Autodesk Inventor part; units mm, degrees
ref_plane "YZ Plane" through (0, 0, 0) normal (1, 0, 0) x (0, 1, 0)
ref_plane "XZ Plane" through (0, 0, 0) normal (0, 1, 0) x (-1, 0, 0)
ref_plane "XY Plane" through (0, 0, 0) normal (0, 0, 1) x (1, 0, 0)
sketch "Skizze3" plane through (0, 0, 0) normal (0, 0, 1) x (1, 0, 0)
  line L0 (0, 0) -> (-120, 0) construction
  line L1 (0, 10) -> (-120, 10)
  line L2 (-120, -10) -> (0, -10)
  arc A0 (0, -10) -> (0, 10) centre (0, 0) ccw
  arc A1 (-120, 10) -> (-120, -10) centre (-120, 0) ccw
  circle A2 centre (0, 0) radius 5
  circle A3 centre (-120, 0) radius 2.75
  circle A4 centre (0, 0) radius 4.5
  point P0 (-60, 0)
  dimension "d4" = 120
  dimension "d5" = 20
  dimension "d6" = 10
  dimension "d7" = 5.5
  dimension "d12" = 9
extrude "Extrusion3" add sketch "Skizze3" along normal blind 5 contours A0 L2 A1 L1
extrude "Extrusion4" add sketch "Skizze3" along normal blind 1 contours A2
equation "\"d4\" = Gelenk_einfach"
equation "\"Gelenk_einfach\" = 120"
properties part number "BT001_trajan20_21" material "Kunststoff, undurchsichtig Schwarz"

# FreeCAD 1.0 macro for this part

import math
import FreeCAD as App
import Part
import Sketcher

V = App.Vector
Q = App.Units.Quantity

doc = App.newDocument("Part")
body = doc.addObject("PartDesign::Body", "Body")

# Sketch on XY plane
sketch1 = doc.addObject("Sketcher::SketchObject", "Sketch")
body.addObject(sketch1)
sketch1.AttachmentSupport = (doc.XY_Plane, [""])
sketch1.MapMode = "FlatFace"
sketch1.addGeometry(Part.ArcOfCircle(Part.Circle(V(0, 0, 0), V(0, 0, 1), 10), math.radians(-90), math.radians(90)), False)
sketch1.addGeometry(Part.LineSegment(V(0, 10, 0), V(-120, 10, 0)), False)
sketch1.addGeometry(Part.ArcOfCircle(Part.Circle(V(-120, 0, 0), V(0, 0, 1), 10), math.radians(90), math.radians(270)), False)
sketch1.addGeometry(Part.LineSegment(V(-120, -10, 0), V(0, -10, 0)), False)
sketch1.addGeometry(Part.Circle(V(-120, 0, 0), V(0, 0, 1), 2.8), False)
sketch1.addGeometry(Part.Circle(V(0, 0, 0), V(0, 0, 1), 5), False)
sketch1.addConstraint(Sketcher.Constraint("Tangent", 0, 2, 1, 1))
sketch1.addConstraint(Sketcher.Constraint("Tangent", 1, 2, 2, 1))
sketch1.addConstraint(Sketcher.Constraint("Tangent", 2, 2, 3, 1))
sketch1.addConstraint(Sketcher.Constraint("Tangent", 3, 2, 0, 1))
sketch1.addConstraint(Sketcher.Constraint("Horizontal", 1))
sketch1.addConstraint(Sketcher.Constraint("Horizontal", 3))
sketch1.addConstraint(Sketcher.Constraint("Coincident", 0, 3, -1, 1))
sketch1.addConstraint(Sketcher.Constraint("Coincident", 5, 3, -1, 1))
sketch1.addConstraint(Sketcher.Constraint("Coincident", 4, 3, 2, 3))
sketch1.addConstraint(Sketcher.Constraint("Diameter", 5, Q("10 mm")))
sketch1.addConstraint(Sketcher.Constraint("Radius", 0, Q("10 mm")))
sketch1.addConstraint(Sketcher.Constraint("Diameter", 4, Q("5.5 mm")))
sketch1.addConstraint(Sketcher.Constraint("DistanceX", 1, 2, 1, 1, Q("120 mm")))
pad1 = doc.addObject("PartDesign::Pad", "Pad")
body.addObject(pad1)
pad1.Profile = sketch1
pad1.Length = 5

# Sketch on XY plane
sketch2 = doc.addObject("Sketcher::SketchObject", "Sketch001")
body.addObject(sketch2)
sketch2.AttachmentSupport = (doc.XY_Plane, [""])
sketch2.MapMode = "FlatFace"
sketch2.addGeometry(Part.Circle(V(0, 0, 0), V(0, 0, 1), 5), False)
sketch2.addGeometry(Part.Circle(V(0, 0, 0), V(0, 0, 1), 4.5), False)
sketch2.addConstraint(Sketcher.Constraint("Coincident", 0, 3, -1, 1))
sketch2.addConstraint(Sketcher.Constraint("Coincident", 1, 3, -1, 1))
sketch2.addConstraint(Sketcher.Constraint("Diameter", 0, Q("10 mm")))
sketch2.addConstraint(Sketcher.Constraint("Diameter", 1, Q("9 mm")))
pad2 = doc.addObject("PartDesign::Pad", "Pad001")
body.addObject(pad2)
pad2.Profile = sketch2
pad2.Length = 1

doc.recompute()
